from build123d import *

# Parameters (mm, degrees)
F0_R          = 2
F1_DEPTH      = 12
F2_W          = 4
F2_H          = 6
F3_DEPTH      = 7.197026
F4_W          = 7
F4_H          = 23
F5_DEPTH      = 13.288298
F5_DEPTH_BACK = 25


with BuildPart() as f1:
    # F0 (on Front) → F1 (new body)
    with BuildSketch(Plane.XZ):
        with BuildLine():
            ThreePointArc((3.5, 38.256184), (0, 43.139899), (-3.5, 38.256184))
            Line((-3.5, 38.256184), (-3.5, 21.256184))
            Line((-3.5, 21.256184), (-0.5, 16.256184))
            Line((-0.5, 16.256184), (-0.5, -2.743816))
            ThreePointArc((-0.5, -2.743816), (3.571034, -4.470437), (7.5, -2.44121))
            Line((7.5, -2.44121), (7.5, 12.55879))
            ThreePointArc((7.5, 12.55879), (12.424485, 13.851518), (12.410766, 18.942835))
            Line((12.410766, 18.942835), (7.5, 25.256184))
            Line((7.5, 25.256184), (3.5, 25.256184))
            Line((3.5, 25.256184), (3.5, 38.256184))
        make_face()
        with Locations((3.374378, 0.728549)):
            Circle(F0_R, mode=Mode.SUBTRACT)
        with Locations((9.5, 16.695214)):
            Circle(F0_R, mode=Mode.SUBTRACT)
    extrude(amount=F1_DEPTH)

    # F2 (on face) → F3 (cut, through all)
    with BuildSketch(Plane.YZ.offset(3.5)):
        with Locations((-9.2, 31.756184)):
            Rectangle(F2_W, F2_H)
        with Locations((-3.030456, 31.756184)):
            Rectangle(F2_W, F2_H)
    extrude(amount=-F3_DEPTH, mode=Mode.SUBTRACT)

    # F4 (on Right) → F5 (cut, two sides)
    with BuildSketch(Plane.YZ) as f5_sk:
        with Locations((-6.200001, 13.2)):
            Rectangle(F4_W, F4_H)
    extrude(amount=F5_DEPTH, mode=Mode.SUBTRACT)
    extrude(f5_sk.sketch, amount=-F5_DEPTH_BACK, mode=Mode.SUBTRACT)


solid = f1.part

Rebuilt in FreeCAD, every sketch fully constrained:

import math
import FreeCAD as App
import Part
import Sketcher
from FreeCAD import Vector

doc = App.newDocument("Part")
params = doc.addObject("Spreadsheet::Sheet", "Params")
for row, (alias, value) in enumerate([
    ("sketch1_diameter", "4 mm"),
    ("sketch1_width", "4 mm"),
    ("sketch1_height", "17 mm"),
    ("sketch1_height2", "19 mm"),
    ("sketch1_height3", "15 mm"),
    ("pad1_length", "12 mm"),
    ("sketch2_width", "4 mm"),
    ("sketch2_height", "6 mm"),
    ("sketch3_width", "7 mm"),
    ("sketch3_height", "23 mm"),
], start=1):
    params.set(f"A{row}", alias)
    params.set(f"B{row}", "=" + value)
    params.setAlias(f"B{row}", alias)

body = doc.addObject("PartDesign::Body", "Body")

# Sketch on XZ plane
sketch1 = body.newObject("Sketcher::SketchObject", "Sketch")
sketch1.AttachmentSupport = (doc.getObject("XZ_Plane"), [""])
sketch1.MapMode = "FlatFace"
sketch1.addGeometry([
    Part.ArcOfCircle(Part.Circle(Vector(0, 39.4, 0), Vector(0, 0, 1), 3.7), math.radians(-19), math.radians(199)),  # 0
    Part.LineSegment(Vector(-3.5, 38.3, 0), Vector(-3.5, 21.3, 0)),  # 1
    Part.LineSegment(Vector(-3.5, 21.3, 0), Vector(-0.5, 16.3, 0)),  # 2
    Part.LineSegment(Vector(-0.5, 16.3, 0), Vector(-0.5, -2.7, 0)),  # 3
    Part.ArcOfCircle(Part.Circle(Vector(3.4, 0.7, 0), Vector(0, 0, 1), 5.2), math.radians(-138), math.radians(-38)),  # 4
    Part.LineSegment(Vector(7.5, -2.4, 0), Vector(7.5, 12.6, 0)),  # 5
    Part.ArcOfCircle(Part.Circle(Vector(9.1, 16.4, 0), Vector(0, 0, 1), 4.2), math.radians(-113), math.radians(38)),  # 6
    Part.LineSegment(Vector(12.4, 18.9, 0), Vector(7.5, 25.3, 0)),  # 7
    Part.LineSegment(Vector(7.5, 25.3, 0), Vector(3.5, 25.3, 0)),  # 8
    Part.LineSegment(Vector(3.5, 25.3, 0), Vector(3.5, 38.3, 0)),  # 9
    Part.Circle(Vector(3.4, 0.7, 0), Vector(0, 0, 1), 2),  # 10
    Part.Circle(Vector(9.5, 16.7, 0), Vector(0, 0, 1), 2),  # 11
], False)
sketch1.addConstraint([
    Sketcher.Constraint("Coincident", 0, 2, 1, 1),
    Sketcher.Constraint("Coincident", 1, 2, 2, 1),
    Sketcher.Constraint("Coincident", 2, 2, 3, 1),
    Sketcher.Constraint("Coincident", 3, 2, 4, 1),
    Sketcher.Constraint("Coincident", 4, 2, 5, 1),
    Sketcher.Constraint("Coincident", 5, 2, 6, 1),
    Sketcher.Constraint("Tangent", 6, 2, 7, 1),
    Sketcher.Constraint("Coincident", 7, 2, 8, 1),
    Sketcher.Constraint("Coincident", 8, 2, 9, 1),
    Sketcher.Constraint("Coincident", 9, 2, 0, 1),
    Sketcher.Constraint("Vertical", 1),
    Sketcher.Constraint("Vertical", 3),
    Sketcher.Constraint("Vertical", 5),
    Sketcher.Constraint("Horizontal", 8),
    Sketcher.Constraint("Vertical", 9),
    Sketcher.Constraint("Coincident", 10, 3, 4, 3),
    Sketcher.Constraint("Equal", 10, 11),
    Sketcher.Constraint("Symmetric", 0, 2, 9, 2, -2),
    Sketcher.Constraint("Vertical", 5, 2, 7, 2),
    Sketcher.Constraint("Diameter", 10, 4.0),
    Sketcher.Constraint("DistanceX", 8, 2, 8, 1, 4.0),
    Sketcher.Constraint("DistanceY", 1, 2, 1, 1, 17.0),
    Sketcher.Constraint("DistanceY", 3, 2, 3, 1, 19.0),
    Sketcher.Constraint("DistanceY", 5, 1, 5, 2, 15.0),
    Sketcher.Constraint("DistanceY", 9, 1, 9, 2, 13.0),
    Sketcher.Constraint("DistanceX", 0, 2, 11, 3, 13.0),
    Sketcher.Constraint("DistanceX", 1, 2, 2, 2, 3.0),
    Sketcher.Constraint("DistanceY", 2, 2, 1, 2, 5.0),
    Sketcher.Constraint("DistanceX", 3, 2, 4, 2, 8.0),
    Sketcher.Constraint("Radius", 0, 3.696026),
    Sketcher.Constraint("Radius", 4, 5.202703),
    Sketcher.Constraint("Radius", 6, 4.160666),
    Sketcher.Constraint("DistanceX", -1, 1, 4, 3, 3.374378),
    Sketcher.Constraint("DistanceY", -1, 1, 4, 3, 0.728548),
    Sketcher.Constraint("DistanceX", -1, 1, 6, 3, 9.126632),
    Sketcher.Constraint("DistanceY", 11, 3, 0, 3, 22.748659),
])
sketch1.setExpression("Constraints[19]", "Params.sketch1_diameter")
sketch1.setExpression("Constraints[20]", "Params.sketch1_width")
sketch1.setExpression("Constraints[21]", "Params.sketch1_height")
sketch1.setExpression("Constraints[22]", "Params.sketch1_height2")
sketch1.setExpression("Constraints[23]", "Params.sketch1_height3")
pad1 = body.newObject("PartDesign::Pad", "Pad")
pad1.Profile = sketch1
pad1.setExpression("Length", "Params.pad1_length")

# Sketch on YZ plane
sketch2 = body.newObject("Sketcher::SketchObject", "Sketch001")
sketch2.AttachmentSupport = (doc.getObject("YZ_Plane"), [""])
sketch2.MapMode = "FlatFace"
sketch2.AttachmentOffset = App.Placement(Vector(0, 0, 3.5), App.Rotation())
sketch2.addGeometry([
    Part.LineSegment(Vector(-11.2, 34.8, 0), Vector(-11.2, 28.8, 0)),  # 0
    Part.LineSegment(Vector(-11.2, 28.8, 0), Vector(-7.2, 28.8, 0)),  # 1
    Part.LineSegment(Vector(-7.2, 28.8, 0), Vector(-7.2, 34.8, 0)),  # 2
    Part.LineSegment(Vector(-7.2, 34.8, 0), Vector(-11.2, 34.8, 0)),  # 3
    Part.LineSegment(Vector(-5, 34.8, 0), Vector(-5, 28.8, 0)),  # 4
    Part.LineSegment(Vector(-5, 28.8, 0), Vector(-1, 28.8, 0)),  # 5
    Part.LineSegment(Vector(-1, 28.8, 0), Vector(-1, 34.8, 0)),  # 6
    Part.LineSegment(Vector(-1, 34.8, 0), Vector(-5, 34.8, 0)),  # 7
], False)
sketch2.addConstraint([
    Sketcher.Constraint("Coincident", 0, 2, 1, 1),
    Sketcher.Constraint("Coincident", 1, 2, 2, 1),
    Sketcher.Constraint("Coincident", 2, 2, 3, 1),
    Sketcher.Constraint("Coincident", 3, 2, 0, 1),
    Sketcher.Constraint("Coincident", 4, 2, 5, 1),
    Sketcher.Constraint("Coincident", 5, 2, 6, 1),
    Sketcher.Constraint("Coincident", 6, 2, 7, 1),
    Sketcher.Constraint("Coincident", 7, 2, 4, 1),
    Sketcher.Constraint("Vertical", 0),
    Sketcher.Constraint("Horizontal", 1),
    Sketcher.Constraint("Vertical", 2),
    Sketcher.Constraint("Horizontal", 3),
    Sketcher.Constraint("Vertical", 4),
    Sketcher.Constraint("Horizontal", 5),
    Sketcher.Constraint("Vertical", 6),
    Sketcher.Constraint("Horizontal", 7),
    Sketcher.Constraint("Horizontal", 1, 2, 4, 2),
    Sketcher.Constraint("Horizontal", 3, 2, 6, 2),
    Sketcher.Constraint("Equal", 3, 5),
    Sketcher.Constraint("DistanceX", 1, 1, 1, 2, 4.0),
    Sketcher.Constraint("DistanceY", 0, 2, 0, 1, 6.0),
    Sketcher.Constraint("DistanceX", 0, 2, -1, 1, 11.2),
    Sketcher.Constraint("DistanceY", -1, 1, 0, 2, 28.756184),
    Sketcher.Constraint("DistanceX", 4, 2, -1, 1, 5.030456),
])
sketch2.setExpression("Constraints[19]", "Params.sketch2_width")
sketch2.setExpression("Constraints[20]", "Params.sketch2_height")
pocket1 = body.newObject("PartDesign::Pocket", "Pocket")
pocket1.Profile = sketch2
pocket1.Type = "ThroughAll"

# Sketch on YZ plane
sketch3 = body.newObject("Sketcher::SketchObject", "Sketch002")
sketch3.AttachmentSupport = (doc.getObject("YZ_Plane"), [""])
sketch3.MapMode = "FlatFace"
sketch3.addGeometry([
    Part.LineSegment(Vector(-10, 25, 0), Vector(-10, 2, 0)),
    Part.LineSegment(Vector(-10, 2, 0), Vector(-3, 2, 0)),
    Part.LineSegment(Vector(-3, 2, 0), Vector(-3, 25, 0)),
    Part.LineSegment(Vector(-3, 25, 0), Vector(-10, 25, 0)),
], False)
sketch3.addConstraint([
    Sketcher.Constraint("Coincident", 0, 2, 1, 1),
    Sketcher.Constraint("Coincident", 1, 2, 2, 1),
    Sketcher.Constraint("Coincident", 2, 2, 3, 1),
    Sketcher.Constraint("Coincident", 3, 2, 0, 1),
    Sketcher.Constraint("Vertical", 0),
    Sketcher.Constraint("Horizontal", 1),
    Sketcher.Constraint("Vertical", 2),
    Sketcher.Constraint("Horizontal", 3),
    Sketcher.Constraint("DistanceX", 1, 1, 1, 2, 7.0),
    Sketcher.Constraint("DistanceY", 0, 2, 0, 1, 23.0),
    Sketcher.Constraint("DistanceX", 0, 2, -1, 1, 9.700001),
    Sketcher.Constraint("DistanceY", -1, 1, 0, 2, 1.7),
])
sketch3.setExpression("Constraints[8]", "Params.sketch3_width")
sketch3.setExpression("Constraints[9]", "Params.sketch3_height")
pocket2 = body.newObject("PartDesign::Pocket", "Pocket001")
pocket2.Profile = sketch3
pocket2.Type = "ThroughAll"
pocket2.Midplane = True

doc.recompute()
